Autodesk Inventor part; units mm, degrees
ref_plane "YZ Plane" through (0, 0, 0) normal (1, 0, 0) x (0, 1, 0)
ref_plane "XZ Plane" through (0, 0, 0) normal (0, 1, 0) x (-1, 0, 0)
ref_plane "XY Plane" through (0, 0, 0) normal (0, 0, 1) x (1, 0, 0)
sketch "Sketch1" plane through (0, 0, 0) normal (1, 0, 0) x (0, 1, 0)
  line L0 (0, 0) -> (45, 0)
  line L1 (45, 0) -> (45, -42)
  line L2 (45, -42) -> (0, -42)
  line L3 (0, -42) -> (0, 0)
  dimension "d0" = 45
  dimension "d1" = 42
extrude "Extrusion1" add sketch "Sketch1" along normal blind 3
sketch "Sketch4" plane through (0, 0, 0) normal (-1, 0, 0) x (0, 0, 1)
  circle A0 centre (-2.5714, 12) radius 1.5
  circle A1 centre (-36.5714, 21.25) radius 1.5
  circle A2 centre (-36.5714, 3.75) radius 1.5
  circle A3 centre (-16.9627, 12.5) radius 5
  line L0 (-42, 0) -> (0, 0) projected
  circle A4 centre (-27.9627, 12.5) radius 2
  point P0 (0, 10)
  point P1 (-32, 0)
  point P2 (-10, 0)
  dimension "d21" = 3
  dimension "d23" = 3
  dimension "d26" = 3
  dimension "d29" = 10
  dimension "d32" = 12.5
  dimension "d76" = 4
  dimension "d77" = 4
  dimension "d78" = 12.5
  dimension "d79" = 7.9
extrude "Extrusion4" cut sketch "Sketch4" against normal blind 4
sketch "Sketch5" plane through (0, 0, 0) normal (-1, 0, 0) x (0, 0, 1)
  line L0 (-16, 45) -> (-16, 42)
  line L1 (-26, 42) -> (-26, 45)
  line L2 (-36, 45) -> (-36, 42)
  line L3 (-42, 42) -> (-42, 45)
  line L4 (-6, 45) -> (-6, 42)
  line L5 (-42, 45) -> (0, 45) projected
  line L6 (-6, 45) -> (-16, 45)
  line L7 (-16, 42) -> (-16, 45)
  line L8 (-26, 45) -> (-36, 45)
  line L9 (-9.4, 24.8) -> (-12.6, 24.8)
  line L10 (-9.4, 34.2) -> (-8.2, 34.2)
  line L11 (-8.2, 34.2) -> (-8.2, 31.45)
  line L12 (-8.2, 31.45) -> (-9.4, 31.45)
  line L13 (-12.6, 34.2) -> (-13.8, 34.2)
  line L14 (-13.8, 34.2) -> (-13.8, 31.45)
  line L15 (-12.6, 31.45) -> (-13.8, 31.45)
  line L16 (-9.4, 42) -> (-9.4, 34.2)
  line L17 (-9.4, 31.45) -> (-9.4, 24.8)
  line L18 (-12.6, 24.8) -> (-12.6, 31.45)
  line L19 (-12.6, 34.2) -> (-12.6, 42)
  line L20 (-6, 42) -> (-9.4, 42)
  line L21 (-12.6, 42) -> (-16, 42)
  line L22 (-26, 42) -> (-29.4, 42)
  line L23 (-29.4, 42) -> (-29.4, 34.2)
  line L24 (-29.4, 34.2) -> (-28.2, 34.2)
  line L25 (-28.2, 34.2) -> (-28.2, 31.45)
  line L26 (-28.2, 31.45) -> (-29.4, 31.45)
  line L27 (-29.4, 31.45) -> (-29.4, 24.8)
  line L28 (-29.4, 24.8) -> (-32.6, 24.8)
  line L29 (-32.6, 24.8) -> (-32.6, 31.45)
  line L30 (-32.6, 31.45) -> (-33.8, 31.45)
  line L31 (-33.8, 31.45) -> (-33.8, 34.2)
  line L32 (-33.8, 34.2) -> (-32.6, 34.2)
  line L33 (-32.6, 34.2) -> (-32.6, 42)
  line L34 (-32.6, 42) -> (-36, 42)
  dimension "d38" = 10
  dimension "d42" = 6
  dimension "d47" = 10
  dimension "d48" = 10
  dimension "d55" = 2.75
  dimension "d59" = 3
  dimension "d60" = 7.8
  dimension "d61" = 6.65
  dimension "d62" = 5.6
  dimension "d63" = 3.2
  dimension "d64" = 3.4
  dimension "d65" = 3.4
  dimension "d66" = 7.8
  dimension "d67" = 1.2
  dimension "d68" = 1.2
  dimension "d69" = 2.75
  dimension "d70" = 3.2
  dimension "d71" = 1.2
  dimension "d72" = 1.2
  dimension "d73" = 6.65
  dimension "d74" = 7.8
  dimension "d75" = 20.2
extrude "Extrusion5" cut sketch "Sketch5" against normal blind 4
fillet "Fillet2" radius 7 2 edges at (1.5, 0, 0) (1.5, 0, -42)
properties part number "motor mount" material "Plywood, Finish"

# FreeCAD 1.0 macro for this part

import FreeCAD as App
import Part
import Sketcher

V = App.Vector


def edges_at(feature, points):
    """Names of the edges that pass closest to the given points."""
    edges = feature.Shape.Edges
    near = lambda p: min(range(len(edges)), key=lambda i: edges[i].distToShape(Part.Vertex(*p))[0])
    return sorted({f"Edge{near(p) + 1}" for p in points})

doc = App.newDocument("Part")
body = doc.addObject("PartDesign::Body", "Body")

# Sketch on YZ plane
sketch1 = body.newObject("Sketcher::SketchObject", "Sketch")
sketch1.AttachmentSupport = (doc.getObject("YZ_Plane"), [""])
sketch1.MapMode = "FlatFace"
sketch1.addGeometry([
    Part.LineSegment(V(45, 0, 0), V(0, 0, 0)),
    Part.LineSegment(V(0, 0, 0), V(0, -42, 0)),
    Part.LineSegment(V(0, -42, 0), V(45, -42, 0)),
    Part.LineSegment(V(45, -42, 0), V(45, 0, 0)),
], False)
sketch1.addConstraint([
    Sketcher.Constraint("Coincident", 0, 2, 1, 1),
    Sketcher.Constraint("Coincident", 1, 2, 2, 1),
    Sketcher.Constraint("Coincident", 2, 2, 3, 1),
    Sketcher.Constraint("Coincident", 3, 2, 0, 1),
    Sketcher.Constraint("Horizontal", 0),
    Sketcher.Constraint("Vertical", 1),
    Sketcher.Constraint("Horizontal", 2),
    Sketcher.Constraint("Vertical", 3),
    Sketcher.Constraint("Coincident", 0, 2, -1, 1),
    Sketcher.Constraint("DistanceX", 0, 2, 0, 1, 45.0),
    Sketcher.Constraint("DistanceY", 1, 2, 1, 1, 42.0),
])
pad1 = body.newObject("PartDesign::Pad", "Pad")
pad1.Profile = sketch1
pad1.Length = 3

# Sketch on YZ plane
sketch2 = body.newObject("Sketcher::SketchObject", "Sketch001")
sketch2.AttachmentSupport = (doc.getObject("YZ_Plane"), [""])
sketch2.MapMode = "FlatFace"
sketch2.addGeometry([
    Part.Circle(V(12, -2.6, 0), V(0, 0, 1), 1.5),  # 0
    Part.Circle(V(21.2, -36.6, 0), V(0, 0, 1), 1.5),  # 1
    Part.Circle(V(3.8, -36.6, 0), V(0, 0, 1), 1.5),  # 2
    Part.Circle(V(12.5, -17, 0), V(0, 0, 1), 5),  # 3
    Part.Circle(V(12.5, -28, 0), V(0, 0, 1), 2),  # 4
], False)
sketch2.addConstraint([
    Sketcher.Constraint("Equal", 0, 1),
    Sketcher.Constraint("Equal", 1, 2),
    Sketcher.Constraint("Horizontal", 1, 3, 2, 3),
    Sketcher.Constraint("Vertical", 3, 3, 4, 3),
    Sketcher.Constraint("Diameter", 0, 3.0),
    Sketcher.Constraint("Diameter", 3, 10.0),
    Sketcher.Constraint("Diameter", 4, 4.0),
    Sketcher.Constraint("DistanceX", -1, 1, 3, 3, 12.5),
    Sketcher.Constraint("DistanceX", -1, 1, 0, 3, 12.0),
    Sketcher.Constraint("DistanceY", 1, 3, 0, 3, 34.0),
    Sketcher.Constraint("DistanceY", 4, 3, 3, 3, 11.0),
    Sketcher.Constraint("DistanceX", 2, 3, 1, 3, 17.5),
    Sketcher.Constraint("DistanceX", -1, 1, 1, 3, 21.25),
    Sketcher.Constraint("DistanceY", 0, 3, -1, 1, 2.5714),
    Sketcher.Constraint("DistanceY", 3, 3, -1, 1, 16.9627),
])
pocket1 = body.newObject("PartDesign::Pocket", "Pocket")
pocket1.Profile = sketch2
pocket1.Length = 4
pocket1.Reversed = True

# Sketch on YZ plane
sketch3 = body.newObject("Sketcher::SketchObject", "Sketch002")
sketch3.AttachmentSupport = (doc.getObject("YZ_Plane"), [""])
sketch3.MapMode = "FlatFace"
sketch3.addGeometry([
    Part.LineSegment(V(45, -6, 0), V(45, -16, 0)),  # 0
    Part.LineSegment(V(45, -16, 0), V(42, -16, 0)),  # 1
    Part.LineSegment(V(42, -16, 0), V(42, -12.6, 0)),  # 2
    Part.LineSegment(V(42, -12.6, 0), V(34.2, -12.6, 0)),  # 3
    Part.LineSegment(V(34.2, -12.6, 0), V(34.2, -13.8, 0)),  # 4
    Part.LineSegment(V(34.2, -13.8, 0), V(31.4, -13.8, 0)),  # 5
    Part.LineSegment(V(31.4, -13.8, 0), V(31.4, -12.6, 0)),  # 6
    Part.LineSegment(V(31.4, -12.6, 0), V(24.8, -12.6, 0)),  # 7
    Part.LineSegment(V(24.8, -12.6, 0), V(24.8, -9.4, 0)),  # 8
    Part.LineSegment(V(24.8, -9.4, 0), V(31.4, -9.4, 0)),  # 9
    Part.LineSegment(V(31.4, -9.4, 0), V(31.4, -8.2, 0)),  # 10
    Part.LineSegment(V(31.4, -8.2, 0), V(34.2, -8.2, 0)),  # 11
    Part.LineSegment(V(34.2, -8.2, 0), V(34.2, -9.4, 0)),  # 12
    Part.LineSegment(V(34.2, -9.4, 0), V(42, -9.4, 0)),  # 13
    Part.LineSegment(V(42, -9.4, 0), V(42, -6, 0)),  # 14
    Part.LineSegment(V(42, -6, 0), V(45, -6, 0)),  # 15
    Part.LineSegment(V(42, -26, 0), V(45, -26, 0)),  # 16
    Part.LineSegment(V(45, -26, 0), V(45, -36, 0)),  # 17
    Part.LineSegment(V(45, -36, 0), V(42, -36, 0)),  # 18
    Part.LineSegment(V(42, -36, 0), V(42, -32.6, 0)),  # 19
    Part.LineSegment(V(42, -32.6, 0), V(34.2, -32.6, 0)),  # 20
    Part.LineSegment(V(34.2, -32.6, 0), V(34.2, -33.8, 0)),  # 21
    Part.LineSegment(V(34.2, -33.8, 0), V(31.4, -33.8, 0)),  # 22
    Part.LineSegment(V(31.4, -33.8, 0), V(31.4, -32.6, 0)),  # 23
    Part.LineSegment(V(31.4, -32.6, 0), V(24.8, -32.6, 0)),  # 24
    Part.LineSegment(V(24.8, -32.6, 0), V(24.8, -29.4, 0)),  # 25
    Part.LineSegment(V(24.8, -29.4, 0), V(31.4, -29.4, 0)),  # 26
    Part.LineSegment(V(31.4, -29.4, 0), V(31.4, -28.2, 0)),  # 27
    Part.LineSegment(V(31.4, -28.2, 0), V(34.2, -28.2, 0)),  # 28
    Part.LineSegment(V(34.2, -28.2, 0), V(34.2, -29.4, 0)),  # 29
    Part.LineSegment(V(34.2, -29.4, 0), V(42, -29.4, 0)),  # 30
    Part.LineSegment(V(42, -29.4, 0), V(42, -26, 0)),  # 31
], False)
sketch3.addConstraint([
    Sketcher.Constraint("Coincident", 0, 2, 1, 1),
    Sketcher.Constraint("Coincident", 1, 2, 2, 1),
    Sketcher.Constraint("Coincident", 2, 2, 3, 1),
    Sketcher.Constraint("Coincident", 3, 2, 4, 1),
    Sketcher.Constraint("Coincident", 4, 2, 5, 1),
    Sketcher.Constraint("Coincident", 5, 2, 6, 1),
    Sketcher.Constraint("Coincident", 6, 2, 7, 1),
    Sketcher.Constraint("Coincident", 7, 2, 8, 1),
    Sketcher.Constraint("Coincident", 8, 2, 9, 1),
    Sketcher.Constraint("Coincident", 9, 2, 10, 1),
    Sketcher.Constraint("Coincident", 10, 2, 11, 1),
    Sketcher.Constraint("Coincident", 11, 2, 12, 1),
    Sketcher.Constraint("Coincident", 12, 2, 13, 1),
    Sketcher.Constraint("Coincident", 13, 2, 14, 1),
    Sketcher.Constraint("Coincident", 14, 2, 15, 1),
    Sketcher.Constraint("Coincident", 15, 2, 0, 1),
    Sketcher.Constraint("Coincident", 16, 2, 17, 1),
    Sketcher.Constraint("Coincident", 17, 2, 18, 1),
    Sketcher.Constraint("Coincident", 18, 2, 19, 1),
    Sketcher.Constraint("Coincident", 19, 2, 20, 1),
    Sketcher.Constraint("Coincident", 20, 2, 21, 1),
    Sketcher.Constraint("Coincident", 21, 2, 22, 1),
    Sketcher.Constraint("Coincident", 22, 2, 23, 1),
    Sketcher.Constraint("Coincident", 23, 2, 24, 1),
    Sketcher.Constraint("Coincident", 24, 2, 25, 1),
    Sketcher.Constraint("Coincident", 25, 2, 26, 1),
    Sketcher.Constraint("Coincident", 26, 2, 27, 1),
    Sketcher.Constraint("Coincident", 27, 2, 28, 1),
    Sketcher.Constraint("Coincident", 28, 2, 29, 1),
    Sketcher.Constraint("Coincident", 29, 2, 30, 1),
    Sketcher.Constraint("Coincident", 30, 2, 31, 1),
    Sketcher.Constraint("Coincident", 31, 2, 16, 1),
    Sketcher.Constraint("Vertical", 0),
    Sketcher.Constraint("Horizontal", 1),
    Sketcher.Constraint("Vertical", 2),
    Sketcher.Constraint("Horizontal", 3),
    Sketcher.Constraint("Vertical", 4),
    Sketcher.Constraint("Horizontal", 5),
    Sketcher.Constraint("Vertical", 6),
    Sketcher.Constraint("Horizontal", 7),
    Sketcher.Constraint("Vertical", 8),
    Sketcher.Constraint("Horizontal", 9),
    Sketcher.Constraint("Vertical", 10),
    Sketcher.Constraint("Horizontal", 11),
    Sketcher.Constraint("Vertical", 12),
    Sketcher.Constraint("Horizontal", 13),
    Sketcher.Constraint("Vertical", 14),
    Sketcher.Constraint("Horizontal", 15),
    Sketcher.Constraint("Horizontal", 16),
    Sketcher.Constraint("Vertical", 17),
    Sketcher.Constraint("Horizontal", 18),
    Sketcher.Constraint("Vertical", 19),
    Sketcher.Constraint("Horizontal", 20),
    Sketcher.Constraint("Vertical", 21),
    Sketcher.Constraint("Horizontal", 22),
    Sketcher.Constraint("Vertical", 23),
    Sketcher.Constraint("Horizontal", 24),
    Sketcher.Constraint("Vertical", 25),
    Sketcher.Constraint("Horizontal", 26),
    Sketcher.Constraint("Vertical", 27),
    Sketcher.Constraint("Horizontal", 28),
    Sketcher.Constraint("Vertical", 29),
    Sketcher.Constraint("Horizontal", 30),
    Sketcher.Constraint("Vertical", 31),
    Sketcher.Constraint("Horizontal", 3, 2, 6, 2),
    Sketcher.Constraint("Horizontal", 9, 2, 12, 2),
    Sketcher.Constraint("Horizontal", 20, 2, 23, 2),
    Sketcher.Constraint("Horizontal", 26, 2, 29, 2),
    Sketcher.Constraint("Vertical", 6, 2, 9, 2),
    Sketcher.Constraint("Vertical", 4, 2, 11, 2),
    Sketcher.Constraint("Vertical", 2, 2, 13, 2),
    Sketcher.Constraint("Vertical", 15, 2, 16, 2),
    Sketcher.Constraint("Vertical", 14, 2, 18, 2),
    Sketcher.Constraint("Vertical", 12, 2, 20, 2),
    Sketcher.Constraint("Vertical", 10, 2, 22, 2),
    Sketcher.Constraint("Vertical", 8, 2, 24, 2),
    Sketcher.Constraint("Vertical", 23, 2, 26, 2),
    Sketcher.Constraint("Vertical", 21, 2, 28, 2),
    Sketcher.Constraint("Vertical", 19, 2, 30, 2),
    Sketcher.Constraint("Equal", 6, 10),
    Sketcher.Constraint("Equal", 2, 14),
    Sketcher.Constraint("Equal", 0, 17),
    Sketcher.Constraint("Equal", 14, 19),
    Sketcher.Constraint("Equal", 12, 21),
    Sketcher.Constraint("Equal", 8, 25),
    Sketcher.Constraint("Equal", 23, 27),
    Sketcher.Constraint("DistanceX", 1, 2, 1, 1, 3.0),
    Sketcher.Constraint("DistanceY", 0, 2, 0, 1, 10.0),
    Sketcher.Constraint("DistanceX", 3, 2, 3, 1, 7.8),
    Sketcher.Constraint("DistanceY", 2, 1, 2, 2, 3.4),
    Sketcher.Constraint("DistanceY", 4, 2, 4, 1, 1.2),
    Sketcher.Constraint("DistanceY", 14, 2, -1, 1, 6.0),
    Sketcher.Constraint("DistanceY", 16, 2, 0, 2, 10.0),
    Sketcher.Constraint("DistanceX", 5, 2, 5, 1, 2.75),
    Sketcher.Constraint("DistanceX", 7, 2, 7, 1, 6.65),
    Sketcher.Constraint("DistanceX", -1, 1, 0, 2, 45.0),
])
pocket2 = body.newObject("PartDesign::Pocket", "Pocket001")
pocket2.Profile = sketch3
pocket2.Length = 4
pocket2.Reversed = True
doc.recompute()

fillet = body.newObject("PartDesign::Fillet", "Fillet")
fillet.Base = (pocket2, edges_at(pocket2, [(1.5, 0, 0), (1.5, 0, -42)]))
fillet.Radius = 7

doc.recompute()
